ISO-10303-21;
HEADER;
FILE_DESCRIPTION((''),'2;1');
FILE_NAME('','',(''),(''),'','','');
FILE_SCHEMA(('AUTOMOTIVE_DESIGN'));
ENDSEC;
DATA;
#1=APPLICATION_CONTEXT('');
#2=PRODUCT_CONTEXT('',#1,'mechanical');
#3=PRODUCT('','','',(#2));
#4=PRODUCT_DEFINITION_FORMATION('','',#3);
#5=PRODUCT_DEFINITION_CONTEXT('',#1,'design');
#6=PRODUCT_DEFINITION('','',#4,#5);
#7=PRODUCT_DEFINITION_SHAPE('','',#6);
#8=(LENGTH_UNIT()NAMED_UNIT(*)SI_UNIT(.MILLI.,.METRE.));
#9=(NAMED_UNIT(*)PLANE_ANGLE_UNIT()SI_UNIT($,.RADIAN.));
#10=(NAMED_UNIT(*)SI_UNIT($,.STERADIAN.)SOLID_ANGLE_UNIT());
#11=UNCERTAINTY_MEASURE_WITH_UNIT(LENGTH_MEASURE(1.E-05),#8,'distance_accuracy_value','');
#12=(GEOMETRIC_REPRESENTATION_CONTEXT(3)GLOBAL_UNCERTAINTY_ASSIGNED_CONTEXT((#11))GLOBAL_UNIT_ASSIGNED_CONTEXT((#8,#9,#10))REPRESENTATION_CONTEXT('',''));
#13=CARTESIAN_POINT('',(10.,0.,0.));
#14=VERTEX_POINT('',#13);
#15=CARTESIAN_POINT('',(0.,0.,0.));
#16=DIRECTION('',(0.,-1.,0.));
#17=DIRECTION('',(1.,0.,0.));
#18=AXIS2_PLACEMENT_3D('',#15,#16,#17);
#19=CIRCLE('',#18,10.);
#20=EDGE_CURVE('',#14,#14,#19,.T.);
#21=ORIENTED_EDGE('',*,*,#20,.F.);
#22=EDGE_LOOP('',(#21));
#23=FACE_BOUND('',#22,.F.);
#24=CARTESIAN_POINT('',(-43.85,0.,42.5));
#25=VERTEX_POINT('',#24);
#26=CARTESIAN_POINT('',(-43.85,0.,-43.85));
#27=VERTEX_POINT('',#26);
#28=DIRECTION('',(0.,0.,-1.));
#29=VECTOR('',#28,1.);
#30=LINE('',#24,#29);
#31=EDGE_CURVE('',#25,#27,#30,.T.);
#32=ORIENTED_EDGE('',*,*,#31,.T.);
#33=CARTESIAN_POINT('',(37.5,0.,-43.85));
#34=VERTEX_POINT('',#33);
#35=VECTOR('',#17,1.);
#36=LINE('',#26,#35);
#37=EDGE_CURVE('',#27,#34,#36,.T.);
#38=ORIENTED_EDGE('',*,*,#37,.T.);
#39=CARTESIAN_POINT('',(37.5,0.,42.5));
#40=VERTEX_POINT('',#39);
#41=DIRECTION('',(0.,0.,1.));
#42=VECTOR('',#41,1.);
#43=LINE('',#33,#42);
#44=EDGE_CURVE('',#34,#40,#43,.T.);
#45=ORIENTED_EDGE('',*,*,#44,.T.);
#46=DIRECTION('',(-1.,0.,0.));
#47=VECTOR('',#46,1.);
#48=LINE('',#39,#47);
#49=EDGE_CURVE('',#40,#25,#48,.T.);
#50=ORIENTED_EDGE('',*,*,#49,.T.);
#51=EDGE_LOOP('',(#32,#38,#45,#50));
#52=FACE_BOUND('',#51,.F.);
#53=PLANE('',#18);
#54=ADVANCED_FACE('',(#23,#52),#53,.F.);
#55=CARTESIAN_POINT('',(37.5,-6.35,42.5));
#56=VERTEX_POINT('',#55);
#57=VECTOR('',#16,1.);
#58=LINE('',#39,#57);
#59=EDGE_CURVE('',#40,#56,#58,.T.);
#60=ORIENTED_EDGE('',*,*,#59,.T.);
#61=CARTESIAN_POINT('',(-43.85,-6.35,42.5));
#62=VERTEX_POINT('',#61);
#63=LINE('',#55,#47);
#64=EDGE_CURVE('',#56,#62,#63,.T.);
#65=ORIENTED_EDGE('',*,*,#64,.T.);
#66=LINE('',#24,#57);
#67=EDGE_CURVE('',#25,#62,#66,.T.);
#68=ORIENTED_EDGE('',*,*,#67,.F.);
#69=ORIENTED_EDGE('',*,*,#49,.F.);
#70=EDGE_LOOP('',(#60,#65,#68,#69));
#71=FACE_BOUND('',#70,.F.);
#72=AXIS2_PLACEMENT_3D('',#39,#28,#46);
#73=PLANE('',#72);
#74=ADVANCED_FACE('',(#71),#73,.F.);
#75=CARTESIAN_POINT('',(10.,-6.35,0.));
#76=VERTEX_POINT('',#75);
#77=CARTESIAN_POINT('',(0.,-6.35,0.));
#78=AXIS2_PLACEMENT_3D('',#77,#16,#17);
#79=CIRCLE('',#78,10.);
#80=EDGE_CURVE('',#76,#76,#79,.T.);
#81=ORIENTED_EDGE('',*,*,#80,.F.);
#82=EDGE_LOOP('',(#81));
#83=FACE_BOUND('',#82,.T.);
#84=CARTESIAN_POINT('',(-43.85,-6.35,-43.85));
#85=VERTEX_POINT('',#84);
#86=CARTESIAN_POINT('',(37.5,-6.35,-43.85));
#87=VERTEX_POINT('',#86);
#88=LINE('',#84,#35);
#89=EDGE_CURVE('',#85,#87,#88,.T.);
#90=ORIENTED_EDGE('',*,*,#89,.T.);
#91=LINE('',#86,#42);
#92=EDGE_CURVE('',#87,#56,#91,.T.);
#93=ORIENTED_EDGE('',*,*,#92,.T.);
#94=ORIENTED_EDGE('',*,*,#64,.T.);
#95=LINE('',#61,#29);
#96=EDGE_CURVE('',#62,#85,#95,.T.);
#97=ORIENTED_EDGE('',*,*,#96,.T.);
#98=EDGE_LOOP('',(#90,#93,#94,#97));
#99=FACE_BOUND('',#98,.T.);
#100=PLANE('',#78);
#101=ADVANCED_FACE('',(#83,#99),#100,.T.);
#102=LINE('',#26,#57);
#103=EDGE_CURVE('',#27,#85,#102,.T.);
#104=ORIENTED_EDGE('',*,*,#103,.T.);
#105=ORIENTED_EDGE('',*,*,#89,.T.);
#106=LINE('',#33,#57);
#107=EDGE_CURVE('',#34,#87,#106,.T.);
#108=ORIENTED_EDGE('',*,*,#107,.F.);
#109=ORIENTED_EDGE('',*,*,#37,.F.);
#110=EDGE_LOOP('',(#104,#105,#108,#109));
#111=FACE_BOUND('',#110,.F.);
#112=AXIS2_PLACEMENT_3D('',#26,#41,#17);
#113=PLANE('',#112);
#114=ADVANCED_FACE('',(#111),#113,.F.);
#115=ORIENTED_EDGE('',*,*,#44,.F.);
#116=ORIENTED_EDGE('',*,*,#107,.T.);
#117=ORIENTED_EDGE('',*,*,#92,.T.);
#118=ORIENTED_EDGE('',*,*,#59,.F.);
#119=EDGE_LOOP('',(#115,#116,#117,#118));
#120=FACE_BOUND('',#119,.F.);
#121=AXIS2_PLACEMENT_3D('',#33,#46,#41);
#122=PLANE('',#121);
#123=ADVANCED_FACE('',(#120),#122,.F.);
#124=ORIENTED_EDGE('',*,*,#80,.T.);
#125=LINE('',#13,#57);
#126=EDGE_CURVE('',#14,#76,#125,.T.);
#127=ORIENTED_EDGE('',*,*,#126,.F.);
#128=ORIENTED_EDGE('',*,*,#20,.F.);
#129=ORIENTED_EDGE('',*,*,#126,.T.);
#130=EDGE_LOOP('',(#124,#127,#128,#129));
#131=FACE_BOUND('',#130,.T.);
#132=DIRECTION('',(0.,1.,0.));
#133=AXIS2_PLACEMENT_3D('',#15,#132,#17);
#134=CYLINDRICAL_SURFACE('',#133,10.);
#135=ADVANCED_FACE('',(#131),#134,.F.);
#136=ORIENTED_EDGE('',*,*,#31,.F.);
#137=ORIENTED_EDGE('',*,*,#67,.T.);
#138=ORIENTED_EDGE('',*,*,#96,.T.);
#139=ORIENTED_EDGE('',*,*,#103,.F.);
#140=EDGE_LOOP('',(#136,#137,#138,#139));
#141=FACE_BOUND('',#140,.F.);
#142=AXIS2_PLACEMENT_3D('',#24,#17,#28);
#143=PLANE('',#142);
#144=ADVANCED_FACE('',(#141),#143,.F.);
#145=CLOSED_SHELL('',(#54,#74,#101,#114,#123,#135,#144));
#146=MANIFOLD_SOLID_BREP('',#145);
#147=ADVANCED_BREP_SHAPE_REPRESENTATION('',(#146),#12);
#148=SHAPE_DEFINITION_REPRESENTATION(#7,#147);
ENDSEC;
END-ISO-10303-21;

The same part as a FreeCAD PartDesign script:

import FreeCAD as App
import Part
import Sketcher

V = App.Vector
Q = App.Units.Quantity


def add_polygon(sketch, points):
    """Adds a closed chain of lines whose ends are joined by coincident constraints."""
    first, n = sketch.GeometryCount, len(points)
    for a, b in zip(points, points[1:] + points[:1]):
        sketch.addGeometry(Part.LineSegment(App.Vector(*a, 0), App.Vector(*b, 0)), False)
    for i in range(n):
        sketch.addConstraint(Sketcher.Constraint("Coincident", first + i, 2, first + (i + 1) % n, 1))

doc = App.newDocument("Part")
body = doc.addObject("PartDesign::Body", "Body")

sketch1 = body.newObject("Sketcher::SketchObject", "Sketch")
sketch1.AttachmentSupport = (doc.getObject("XZ_Plane"), [""])
sketch1.MapMode = "FlatFace"
add_polygon(sketch1, [(-43.85, -43.85), (37.5, -43.85), (37.5, 42.5), (-43.85, 42.5)])
sketch1.addGeometry(Part.Circle(V(0, 0, 0), V(0, 0, 1), 10), False)
sketch1.addConstraint([
    Sketcher.Constraint("Horizontal", 0),
    Sketcher.Constraint("Vertical", 1),
    Sketcher.Constraint("Horizontal", 2),
    Sketcher.Constraint("Vertical", 3),
    Sketcher.Constraint("Coincident", 4, 3, -1, 1),
    Sketcher.Constraint("Diameter", 4, Q("20 mm")),
    Sketcher.Constraint("DistanceX", 0, 1, 0, 2, Q("81.35 mm")),
    Sketcher.Constraint("DistanceY", 1, 1, 1, 2, Q("86.35 mm")),
    Sketcher.Constraint("DistanceX", -1, 1, 0, 2, Q("37.5 mm")),
    Sketcher.Constraint("DistanceY", -1, 1, 1, 2, Q("42.5 mm")),
])
pad1 = body.newObject("PartDesign::Pad", "Pad")
pad1.Profile = sketch1
pad1.Length = 6.35

doc.recompute()
